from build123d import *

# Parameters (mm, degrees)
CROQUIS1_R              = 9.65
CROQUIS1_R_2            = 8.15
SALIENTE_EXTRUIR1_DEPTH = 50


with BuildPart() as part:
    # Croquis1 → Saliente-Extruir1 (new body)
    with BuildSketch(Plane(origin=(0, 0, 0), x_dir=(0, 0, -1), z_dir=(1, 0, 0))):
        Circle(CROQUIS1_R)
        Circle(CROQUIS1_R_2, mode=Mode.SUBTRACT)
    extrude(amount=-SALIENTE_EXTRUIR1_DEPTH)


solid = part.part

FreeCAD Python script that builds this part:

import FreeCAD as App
import Part
import Sketcher
from FreeCAD import Vector

doc = App.newDocument("Part")
body = doc.addObject("PartDesign::Body", "Body")

# Sketch on YZ plane
sketch1 = body.newObject("Sketcher::SketchObject", "Sketch")
sketch1.AttachmentSupport = (doc.getObject("YZ_Plane"), [""])
sketch1.MapMode = "FlatFace"
sketch1.addGeometry(Part.Circle(Vector(0, 0, 0), Vector(0, 0, 1), 10), False)
sketch1.addGeometry(Part.Circle(Vector(0, 0, 0), Vector(0, 0, 1), 8), False)
sketch1.addConstraint(Sketcher.Constraint("Coincident", 0, 3, -1, 1))
sketch1.addConstraint(Sketcher.Constraint("Coincident", 1, 3, -1, 1))
sketch1.addConstraint(Sketcher.Constraint("Diameter", 0, 19.3))
sketch1.addConstraint(Sketcher.Constraint("Diameter", 1, 16.3))
pad1 = body.newObject("PartDesign::Pad", "Pad")
pad1.Profile = sketch1
pad1.Length = 50
pad1.Reversed = True

doc.recompute()
